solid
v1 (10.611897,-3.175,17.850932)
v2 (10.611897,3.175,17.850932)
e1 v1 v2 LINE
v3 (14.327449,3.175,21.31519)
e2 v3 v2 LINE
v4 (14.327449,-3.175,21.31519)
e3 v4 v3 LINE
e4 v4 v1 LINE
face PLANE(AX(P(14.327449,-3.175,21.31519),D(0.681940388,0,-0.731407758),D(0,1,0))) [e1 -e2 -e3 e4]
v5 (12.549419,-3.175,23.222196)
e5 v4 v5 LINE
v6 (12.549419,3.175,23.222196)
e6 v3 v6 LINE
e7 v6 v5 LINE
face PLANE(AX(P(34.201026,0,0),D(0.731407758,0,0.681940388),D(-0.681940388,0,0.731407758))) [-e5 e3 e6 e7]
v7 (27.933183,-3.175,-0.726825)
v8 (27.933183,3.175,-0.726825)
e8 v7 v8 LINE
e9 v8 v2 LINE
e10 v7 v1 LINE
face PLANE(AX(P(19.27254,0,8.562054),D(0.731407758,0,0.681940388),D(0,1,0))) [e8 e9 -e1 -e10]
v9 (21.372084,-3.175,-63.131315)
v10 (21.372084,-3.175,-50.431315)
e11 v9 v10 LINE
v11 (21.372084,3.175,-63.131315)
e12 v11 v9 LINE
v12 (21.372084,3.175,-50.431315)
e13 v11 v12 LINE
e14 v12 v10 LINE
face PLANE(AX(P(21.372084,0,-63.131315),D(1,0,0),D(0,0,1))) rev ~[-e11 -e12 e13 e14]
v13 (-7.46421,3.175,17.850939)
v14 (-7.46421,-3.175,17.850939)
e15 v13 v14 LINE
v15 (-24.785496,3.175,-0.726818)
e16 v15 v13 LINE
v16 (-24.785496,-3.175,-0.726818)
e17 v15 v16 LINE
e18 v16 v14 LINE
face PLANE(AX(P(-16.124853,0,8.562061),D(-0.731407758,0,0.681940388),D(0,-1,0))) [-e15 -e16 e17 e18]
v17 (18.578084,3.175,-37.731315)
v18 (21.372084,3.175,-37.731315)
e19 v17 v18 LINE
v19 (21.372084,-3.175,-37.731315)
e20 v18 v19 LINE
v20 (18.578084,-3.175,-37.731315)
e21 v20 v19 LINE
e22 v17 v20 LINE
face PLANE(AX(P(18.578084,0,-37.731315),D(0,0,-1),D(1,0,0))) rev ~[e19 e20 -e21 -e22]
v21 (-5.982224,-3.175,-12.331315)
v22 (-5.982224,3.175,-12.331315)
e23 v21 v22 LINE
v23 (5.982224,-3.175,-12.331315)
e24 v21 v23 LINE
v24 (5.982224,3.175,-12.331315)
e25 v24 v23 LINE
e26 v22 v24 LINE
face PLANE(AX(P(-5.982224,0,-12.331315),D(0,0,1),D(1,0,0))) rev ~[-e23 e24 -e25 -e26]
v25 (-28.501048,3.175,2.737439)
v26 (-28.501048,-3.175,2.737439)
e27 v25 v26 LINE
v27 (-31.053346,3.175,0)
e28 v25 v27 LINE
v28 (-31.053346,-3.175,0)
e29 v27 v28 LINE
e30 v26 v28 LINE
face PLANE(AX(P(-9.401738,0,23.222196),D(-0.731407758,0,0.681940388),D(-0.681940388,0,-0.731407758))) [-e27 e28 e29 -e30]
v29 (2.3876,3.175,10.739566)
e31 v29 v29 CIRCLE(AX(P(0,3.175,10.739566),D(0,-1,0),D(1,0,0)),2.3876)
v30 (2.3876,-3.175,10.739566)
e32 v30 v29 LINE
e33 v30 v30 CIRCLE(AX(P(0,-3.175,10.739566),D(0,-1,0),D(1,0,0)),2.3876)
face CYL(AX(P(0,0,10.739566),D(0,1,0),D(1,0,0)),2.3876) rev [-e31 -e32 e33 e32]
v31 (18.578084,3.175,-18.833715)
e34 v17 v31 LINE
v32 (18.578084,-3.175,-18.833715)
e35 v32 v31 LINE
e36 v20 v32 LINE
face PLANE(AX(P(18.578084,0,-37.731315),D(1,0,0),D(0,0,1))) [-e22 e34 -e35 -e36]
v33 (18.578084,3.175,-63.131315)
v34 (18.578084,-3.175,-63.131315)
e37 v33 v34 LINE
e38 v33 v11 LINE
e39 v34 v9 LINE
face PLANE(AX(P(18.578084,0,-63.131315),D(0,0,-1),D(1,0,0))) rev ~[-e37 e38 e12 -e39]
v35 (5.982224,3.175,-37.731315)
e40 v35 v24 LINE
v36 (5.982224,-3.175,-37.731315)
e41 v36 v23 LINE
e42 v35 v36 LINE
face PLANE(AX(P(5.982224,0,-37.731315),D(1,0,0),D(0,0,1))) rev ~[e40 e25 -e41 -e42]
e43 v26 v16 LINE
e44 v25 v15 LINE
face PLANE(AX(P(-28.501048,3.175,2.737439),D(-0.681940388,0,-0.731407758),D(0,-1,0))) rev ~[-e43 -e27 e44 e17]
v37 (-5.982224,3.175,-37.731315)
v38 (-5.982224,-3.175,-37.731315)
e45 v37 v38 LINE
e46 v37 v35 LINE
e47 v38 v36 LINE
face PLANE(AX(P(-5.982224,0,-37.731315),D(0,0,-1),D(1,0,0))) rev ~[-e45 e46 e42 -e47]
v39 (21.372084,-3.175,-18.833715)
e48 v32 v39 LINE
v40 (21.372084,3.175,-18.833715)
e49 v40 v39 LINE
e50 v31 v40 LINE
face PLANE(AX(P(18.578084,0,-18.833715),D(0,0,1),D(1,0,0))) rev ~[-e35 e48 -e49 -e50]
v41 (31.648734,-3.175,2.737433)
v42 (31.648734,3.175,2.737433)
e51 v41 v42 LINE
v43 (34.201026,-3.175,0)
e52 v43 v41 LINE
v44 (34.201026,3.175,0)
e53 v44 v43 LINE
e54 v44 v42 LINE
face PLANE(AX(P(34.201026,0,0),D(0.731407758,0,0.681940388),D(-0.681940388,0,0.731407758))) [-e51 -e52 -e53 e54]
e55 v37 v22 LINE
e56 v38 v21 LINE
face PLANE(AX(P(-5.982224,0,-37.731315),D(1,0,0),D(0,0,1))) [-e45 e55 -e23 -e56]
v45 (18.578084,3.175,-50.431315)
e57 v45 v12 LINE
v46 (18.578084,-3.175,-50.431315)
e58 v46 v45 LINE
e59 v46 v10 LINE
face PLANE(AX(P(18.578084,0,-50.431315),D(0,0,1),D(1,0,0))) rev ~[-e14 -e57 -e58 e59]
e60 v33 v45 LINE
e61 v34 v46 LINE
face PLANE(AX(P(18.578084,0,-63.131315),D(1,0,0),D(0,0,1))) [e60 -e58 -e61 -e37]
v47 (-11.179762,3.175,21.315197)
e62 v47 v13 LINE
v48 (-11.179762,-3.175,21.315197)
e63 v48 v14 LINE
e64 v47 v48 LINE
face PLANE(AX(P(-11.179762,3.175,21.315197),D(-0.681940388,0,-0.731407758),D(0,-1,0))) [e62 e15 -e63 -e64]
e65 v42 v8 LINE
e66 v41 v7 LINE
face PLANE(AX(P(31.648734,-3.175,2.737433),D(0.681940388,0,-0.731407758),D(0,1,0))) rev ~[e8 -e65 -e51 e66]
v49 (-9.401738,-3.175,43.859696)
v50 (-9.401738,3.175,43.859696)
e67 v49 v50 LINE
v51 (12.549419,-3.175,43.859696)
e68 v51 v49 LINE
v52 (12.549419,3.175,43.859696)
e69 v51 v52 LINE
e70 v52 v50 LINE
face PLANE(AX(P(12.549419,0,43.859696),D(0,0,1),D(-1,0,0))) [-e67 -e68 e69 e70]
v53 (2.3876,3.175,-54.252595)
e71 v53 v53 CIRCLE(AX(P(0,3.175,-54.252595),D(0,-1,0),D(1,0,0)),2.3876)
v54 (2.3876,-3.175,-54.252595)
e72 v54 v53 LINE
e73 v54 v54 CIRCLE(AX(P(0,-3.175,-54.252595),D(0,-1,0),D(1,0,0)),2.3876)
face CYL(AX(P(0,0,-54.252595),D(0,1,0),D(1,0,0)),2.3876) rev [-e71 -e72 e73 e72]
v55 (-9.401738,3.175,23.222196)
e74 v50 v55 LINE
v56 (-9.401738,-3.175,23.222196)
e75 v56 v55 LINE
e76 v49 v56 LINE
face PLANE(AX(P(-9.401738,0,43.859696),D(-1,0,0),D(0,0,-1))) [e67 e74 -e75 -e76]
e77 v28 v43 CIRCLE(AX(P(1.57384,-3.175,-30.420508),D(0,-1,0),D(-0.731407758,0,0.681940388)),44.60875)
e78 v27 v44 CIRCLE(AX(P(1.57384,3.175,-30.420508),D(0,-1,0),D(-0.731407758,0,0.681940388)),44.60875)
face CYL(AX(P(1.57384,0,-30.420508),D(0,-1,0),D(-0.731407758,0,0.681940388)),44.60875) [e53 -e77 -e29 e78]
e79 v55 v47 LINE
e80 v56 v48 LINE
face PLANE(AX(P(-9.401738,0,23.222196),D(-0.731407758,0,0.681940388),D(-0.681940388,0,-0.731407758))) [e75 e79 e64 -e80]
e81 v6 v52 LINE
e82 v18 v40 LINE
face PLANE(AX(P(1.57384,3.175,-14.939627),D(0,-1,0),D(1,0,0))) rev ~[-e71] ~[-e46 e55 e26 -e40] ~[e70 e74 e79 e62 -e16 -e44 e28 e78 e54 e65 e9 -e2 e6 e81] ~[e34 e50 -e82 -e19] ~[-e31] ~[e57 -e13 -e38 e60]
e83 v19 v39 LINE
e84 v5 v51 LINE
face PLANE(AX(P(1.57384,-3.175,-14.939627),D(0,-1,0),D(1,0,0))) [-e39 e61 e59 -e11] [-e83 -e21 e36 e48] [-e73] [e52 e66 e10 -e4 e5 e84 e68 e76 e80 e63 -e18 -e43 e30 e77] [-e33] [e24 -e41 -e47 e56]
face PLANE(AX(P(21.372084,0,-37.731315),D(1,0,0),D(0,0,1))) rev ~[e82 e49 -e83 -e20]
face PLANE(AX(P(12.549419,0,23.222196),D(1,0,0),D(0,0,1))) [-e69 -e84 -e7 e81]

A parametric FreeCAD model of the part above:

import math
import FreeCAD as App
import Part
import Sketcher
Q = App.Units.Quantity

doc = App.newDocument("Part")
params = doc.addObject("Spreadsheet::Sheet", "Params")
for row, (alias, value) in enumerate([
    ("sketch1_height", "1 in"),
    ("sketch1_diameter", "0.188 in"),
    ("sketch1_height2", "0.5 in"),
    ("sketch1_width", "0.11 in"),
    ("sketch1_length", "1.25 in"),
    ("pad1_length", "0.25 in"),
    ("sketch2_height", "1 in"),
    ("sketch2_width", "0.25 in"),
    ("pocket1_length", "0.2 in"),
    ("sketch3_height", "1 in"),
    ("sketch3_width", "0.25 in"),
    ("pocket2_length", "0.2 in"),
], start=1):
    params.set(f"A{row}", alias)
    params.set(f"B{row}", "=" + value)
    params.setAlias(f"B{row}", alias)

body = doc.addObject("PartDesign::Body", "Body")

# Sketch on XZ plane
sketch1 = body.newObject("Sketcher::SketchObject", "Sketch")
sketch1.AttachmentSupport = (doc.getObject("XZ_Plane"), [""])
sketch1.MapMode = "FlatFace"
sketch1.addGeometry([
    Part.LineSegment(App.Vector(-9.401738, 23.222196, 0), App.Vector(-31.053346, 0, 0)),  # 0
    Part.ArcOfCircle(Part.Circle(App.Vector(1.57384, -30.420508, 0), App.Vector(0, 0, 1), 44.60875), math.radians(137.004542), math.radians(402.995458)),  # 1
    Part.LineSegment(App.Vector(34.201026, 0, 0), App.Vector(12.549419, 23.222196, 0)),  # 2
    Part.LineSegment(App.Vector(12.549419, 23.222196, 0), App.Vector(12.549419, 43.859696, 0)),  # 3
    Part.LineSegment(App.Vector(12.549419, 43.859696, 0), App.Vector(-9.401738, 43.859696, 0)),  # 4
    Part.LineSegment(App.Vector(-9.401738, 43.859696, 0), App.Vector(-9.401738, 23.222196, 0)),  # 5
    Part.Circle(App.Vector(0, -54.252595, 0), App.Vector(0, 0, 1), 2.3876),  # 6
    Part.LineSegment(App.Vector(5.982224, -37.731315, 0), App.Vector(-5.982224, -37.731315, 0)),  # 7
    Part.LineSegment(App.Vector(-5.982224, -37.731315, 0), App.Vector(-5.982224, -12.331315, 0)),  # 8
    Part.LineSegment(App.Vector(-5.982224, -12.331315, 0), App.Vector(5.982224, -12.331315, 0)),  # 9
    Part.LineSegment(App.Vector(5.982224, -12.331315, 0), App.Vector(5.982224, -37.731315, 0)),  # 10
    Part.LineSegment(App.Vector(21.372084, -63.131315, 0), App.Vector(18.578084, -63.131315, 0)),  # 11
    Part.LineSegment(App.Vector(18.578084, -63.131315, 0), App.Vector(18.578084, -50.431315, 0)),  # 12
    Part.LineSegment(App.Vector(18.578084, -50.431315, 0), App.Vector(21.372084, -50.431315, 0)),  # 13
    Part.LineSegment(App.Vector(21.372084, -50.431315, 0), App.Vector(21.372084, -63.131315, 0)),  # 14
    Part.LineSegment(App.Vector(21.372084, -37.731315, 0), App.Vector(18.578084, -37.731315, 0)),  # 15
    Part.LineSegment(App.Vector(18.578084, -37.731315, 0), App.Vector(18.578084, -18.833715, 0)),  # 16
    Part.LineSegment(App.Vector(18.578084, -18.833715, 0), App.Vector(21.372084, -18.833715, 0)),  # 17
    Part.LineSegment(App.Vector(21.372084, -18.833715, 0), App.Vector(21.372084, -37.731315, 0)),  # 18
    Part.Circle(App.Vector(0, 10.739566, 0), App.Vector(0, 0, 1), 2.3876),  # 19
], False)
sketch1.addConstraint([
    Sketcher.Constraint("Tangent", 0, 2, 1, 1),
    Sketcher.Constraint("Tangent", 1, 2, 2, 1),
    Sketcher.Constraint("Coincident", 2, 2, 3, 1),
    Sketcher.Constraint("Coincident", 3, 2, 4, 1),
    Sketcher.Constraint("Coincident", 4, 2, 5, 1),
    Sketcher.Constraint("Coincident", 5, 2, 0, 1),
    Sketcher.Constraint("Coincident", 7, 2, 8, 1),
    Sketcher.Constraint("Coincident", 8, 2, 9, 1),
    Sketcher.Constraint("Coincident", 9, 2, 10, 1),
    Sketcher.Constraint("Coincident", 10, 2, 7, 1),
    Sketcher.Constraint("Coincident", 11, 2, 12, 1),
    Sketcher.Constraint("Coincident", 12, 2, 13, 1),
    Sketcher.Constraint("Coincident", 13, 2, 14, 1),
    Sketcher.Constraint("Coincident", 14, 2, 11, 1),
    Sketcher.Constraint("Coincident", 15, 2, 16, 1),
    Sketcher.Constraint("Coincident", 16, 2, 17, 1),
    Sketcher.Constraint("Coincident", 17, 2, 18, 1),
    Sketcher.Constraint("Coincident", 18, 2, 15, 1),
    Sketcher.Constraint("Vertical", 3),
    Sketcher.Constraint("Horizontal", 4),
    Sketcher.Constraint("Vertical", 5),
    Sketcher.Constraint("Horizontal", 7),
    Sketcher.Constraint("Vertical", 8),
    Sketcher.Constraint("Horizontal", 9),
    Sketcher.Constraint("Vertical", 10),
    Sketcher.Constraint("Horizontal", 11),
    Sketcher.Constraint("Vertical", 12),
    Sketcher.Constraint("Horizontal", 13),
    Sketcher.Constraint("Vertical", 14),
    Sketcher.Constraint("Horizontal", 15),
    Sketcher.Constraint("Vertical", 16),
    Sketcher.Constraint("Horizontal", 17),
    Sketcher.Constraint("Vertical", 18),
    Sketcher.Constraint("Equal", 6, 19),
    Sketcher.Constraint("PointOnObject", 6, 3, -2),
    Sketcher.Constraint("PointOnObject", 19, 3, -2),
    Sketcher.Constraint("PointOnObject", 0, 2, -1),
    Sketcher.Constraint("PointOnObject", 1, 2, -1),
    Sketcher.Constraint("Horizontal", 2, 2, 5, 2),
    Sketcher.Constraint("Horizontal", 10, 2, 15, 2),
    Sketcher.Constraint("Vertical", 12, 2, 15, 2),
    Sketcher.Constraint("Vertical", 14, 2, 17, 2),
    Sketcher.Constraint("DistanceY", 8, 1, 8, 2, Q("1 in")),
    Sketcher.Constraint("Diameter", 6, Q("0.188 in")),
    Sketcher.Constraint("DistanceY", 12, 1, 12, 2, Q("0.5 in")),
    Sketcher.Constraint("DistanceY", 11, 2, 10, 2, Q("1 in")),
    Sketcher.Constraint("DistanceX", 11, 2, 11, 1, Q("0.11 in")),
    Sketcher.Constraint("Distance", 0, Q("1.25 in")),
    Sketcher.Constraint("DistanceY", 3, 1, 3, 2, Q("0.8125 in")),
    Sketcher.Constraint("DistanceY", 16, 1, 16, 2, Q("0.744 in")),
    Sketcher.Constraint("Radius", 1, 44.60875),
    Sketcher.Constraint("DistanceX", 10, 2, 11, 2, Q("0.4959 in")),
    Sketcher.Constraint("DistanceX", 4, 2, 4, 1, 21.951157),
    Sketcher.Constraint("DistanceX", 7, 2, 7, 1, 11.964448),
    Sketcher.Constraint("DistanceX", -1, 1, 1, 3, 1.57384),
    Sketcher.Constraint("DistanceY", 6, 3, 19, 3, 64.992161),
    Sketcher.Constraint("DistanceY", 19, 3, 2, 2, 12.48263),
    Sketcher.Constraint("DistanceY", 6, 3, 7, 2, 16.52128),
    Sketcher.Constraint("DistanceX", 0, 2, 7, 2, 25.071122),
])
sketch1.setExpression("Constraints[42]", "Params.sketch1_height")
sketch1.setExpression("Constraints[43]", "Params.sketch1_diameter")
sketch1.setExpression("Constraints[44]", "Params.sketch1_height2")
sketch1.setExpression("Constraints[46]", "Params.sketch1_width")
sketch1.setExpression("Constraints[47]", "Params.sketch1_length")
pad1 = body.newObject("PartDesign::Pad", "Pad")
pad1.Profile = sketch1
pad1.setExpression("Length", "Params.pad1_length")
pad1.Midplane = True

# Sketch on an angled plane
sketch2 = body.newObject("Sketcher::SketchObject", "Sketch001")
sketch2.Placement = App.Placement(App.Vector(-16.612214, 0, 15.488679), App.Rotation(App.Vector(0, -1, 0), App.Vector(0.681940388, 0, 0.731407758), App.Vector(-0.731407758, 0, 0.681940388), "ZXY"))
sketch2.addGeometry([
    Part.LineSegment(App.Vector(-3.175, 7.966169, 0), App.Vector(-3.175, -17.433831, 0)),
    Part.LineSegment(App.Vector(-3.175, -17.433831, 0), App.Vector(3.175, -17.433831, 0)),
    Part.LineSegment(App.Vector(3.175, -17.433831, 0), App.Vector(3.175, 7.966169, 0)),
    Part.LineSegment(App.Vector(3.175, 7.966169, 0), App.Vector(-3.175, 7.966169, 0)),
], False)
sketch2.addConstraint([
    Sketcher.Constraint("Coincident", 0, 2, 1, 1),
    Sketcher.Constraint("Coincident", 1, 2, 2, 1),
    Sketcher.Constraint("Coincident", 2, 2, 3, 1),
    Sketcher.Constraint("Coincident", 3, 2, 0, 1),
    Sketcher.Constraint("Vertical", 0),
    Sketcher.Constraint("Horizontal", 1),
    Sketcher.Constraint("Vertical", 2),
    Sketcher.Constraint("Horizontal", 3),
    Sketcher.Constraint("DistanceY", 0, 2, 0, 1, Q("1 in")),
    Sketcher.Constraint("DistanceX", 1, 1, 1, 2, Q("0.25 in")),
    Sketcher.Constraint("DistanceX", 0, 2, -1, 1, Q("0.125 in")),
    Sketcher.Constraint("DistanceY", 0, 2, -1, 1, 17.433831),
])
sketch2.setExpression("Constraints[8]", "Params.sketch2_height")
sketch2.setExpression("Constraints[9]", "Params.sketch2_width")
pocket1 = body.newObject("PartDesign::Pocket", "Pocket")
pocket1.Profile = sketch2
pocket1.setExpression("Length", "Params.pocket1_length")

# Sketch on an angled plane
sketch3 = body.newObject("Sketcher::SketchObject", "Sketch002")
sketch3.Placement = App.Placement(App.Vector(18.296089, 0, 17.058668), App.Rotation(App.Vector(0, 1, 0), App.Vector(-0.681940388, 0, 0.731407758), App.Vector(0.731407758, 0, 0.681940388), "ZXY"))
sketch3.addGeometry([
    Part.LineSegment(App.Vector(-3.175, 5.819629, 0), App.Vector(-3.175, -19.580371, 0)),
    Part.LineSegment(App.Vector(-3.175, -19.580371, 0), App.Vector(3.175, -19.580371, 0)),
    Part.LineSegment(App.Vector(3.175, -19.580371, 0), App.Vector(3.175, 5.819629, 0)),
    Part.LineSegment(App.Vector(3.175, 5.819629, 0), App.Vector(-3.175, 5.819629, 0)),
], False)
sketch3.addConstraint([
    Sketcher.Constraint("Coincident", 0, 2, 1, 1),
    Sketcher.Constraint("Coincident", 1, 2, 2, 1),
    Sketcher.Constraint("Coincident", 2, 2, 3, 1),
    Sketcher.Constraint("Coincident", 3, 2, 0, 1),
    Sketcher.Constraint("Vertical", 0),
    Sketcher.Constraint("Horizontal", 1),
    Sketcher.Constraint("Vertical", 2),
    Sketcher.Constraint("Horizontal", 3),
    Sketcher.Constraint("DistanceY", 0, 2, 0, 1, Q("1 in")),
    Sketcher.Constraint("DistanceX", 1, 1, 1, 2, Q("0.25 in")),
    Sketcher.Constraint("DistanceX", 0, 2, -1, 1, Q("0.125 in")),
    Sketcher.Constraint("DistanceY", 0, 2, -1, 1, 19.580371),
])
sketch3.setExpression("Constraints[8]", "Params.sketch3_height")
sketch3.setExpression("Constraints[9]", "Params.sketch3_width")
pocket2 = body.newObject("PartDesign::Pocket", "Pocket001")
pocket2.Profile = sketch3
pocket2.setExpression("Length", "Params.pocket2_length")

doc.recompute()
